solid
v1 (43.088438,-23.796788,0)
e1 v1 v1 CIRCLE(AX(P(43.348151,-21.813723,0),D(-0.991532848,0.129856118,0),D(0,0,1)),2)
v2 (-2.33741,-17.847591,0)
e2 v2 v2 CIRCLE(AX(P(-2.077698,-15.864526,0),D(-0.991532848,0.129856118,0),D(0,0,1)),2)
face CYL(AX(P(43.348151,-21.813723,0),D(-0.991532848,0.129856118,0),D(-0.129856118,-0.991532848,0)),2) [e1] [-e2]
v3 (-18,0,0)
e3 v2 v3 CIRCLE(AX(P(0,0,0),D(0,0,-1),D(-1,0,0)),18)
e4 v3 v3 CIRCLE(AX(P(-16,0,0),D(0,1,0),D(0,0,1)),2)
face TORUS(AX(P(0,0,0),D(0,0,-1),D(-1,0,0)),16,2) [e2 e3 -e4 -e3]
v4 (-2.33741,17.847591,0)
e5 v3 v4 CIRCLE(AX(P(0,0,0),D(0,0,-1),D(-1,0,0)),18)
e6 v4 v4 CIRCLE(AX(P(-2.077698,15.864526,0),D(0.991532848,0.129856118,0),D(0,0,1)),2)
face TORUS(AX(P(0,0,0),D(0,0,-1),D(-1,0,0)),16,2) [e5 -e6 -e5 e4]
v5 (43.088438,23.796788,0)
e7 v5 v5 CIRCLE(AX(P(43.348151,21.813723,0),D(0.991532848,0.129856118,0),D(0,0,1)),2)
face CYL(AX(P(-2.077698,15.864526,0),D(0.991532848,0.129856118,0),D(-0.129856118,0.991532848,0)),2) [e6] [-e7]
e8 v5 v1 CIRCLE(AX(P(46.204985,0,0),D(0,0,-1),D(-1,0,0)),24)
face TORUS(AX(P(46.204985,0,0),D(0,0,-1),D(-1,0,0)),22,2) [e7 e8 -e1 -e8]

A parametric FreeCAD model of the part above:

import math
import FreeCAD as App
import Part
import Sketcher
from FreeCAD import Vector
Q = App.Units.Quantity

doc = App.newDocument("Part")
body = doc.addObject("PartDesign::Body", "Body")

sketch1 = doc.addObject("Sketcher::SketchObject", "Sketch")
body.addObject(sketch1)
sketch1.AttachmentSupport = (doc.XZ_Plane, [""])
sketch1.MapMode = "FlatFace"
sketch1.addGeometry(Part.Circle(Vector(-16, 0, 0), Vector(0, 0, 1), 2), False)
sketch1.addConstraint([
    Sketcher.Constraint("PointOnObject", 0, 3, -1),
    Sketcher.Constraint("Diameter", 0, Q("4 mm")),
    Sketcher.Constraint("DistanceX", 0, 3, -1, 1, Q("16 mm")),
])

sketch2 = doc.addObject("Sketcher::SketchObject", "Sketch001")
body.addObject(sketch2)
sketch2.AttachmentSupport = (doc.XY_Plane, [""])
sketch2.MapMode = "FlatFace"
sketch2.addGeometry([
    Part.LineSegment(Vector(-2, 16, 0), Vector(43, 22, 0)),
    Part.ArcOfCircle(Part.Circle(Vector(46, 0, 0), Vector(0, 0, 1), 22), math.radians(-97), math.radians(97)),
    Part.LineSegment(Vector(43, -22, 0), Vector(-2, -16, 0)),
    Part.ArcOfCircle(Part.Circle(Vector(0, 0, 0), Vector(0, 0, 1), 16), math.radians(97), math.radians(263)),
], False)
sketch2.addConstraint([
    Sketcher.Constraint("Tangent", 0, 2, 1, 2),
    Sketcher.Constraint("Tangent", 1, 1, 2, 1),
    Sketcher.Constraint("Tangent", 2, 2, 3, 2),
    Sketcher.Constraint("Tangent", 3, 1, 0, 1),
    Sketcher.Constraint("Coincident", 3, 3, -1, 1),
    Sketcher.Constraint("PointOnObject", 1, 3, -1),
    Sketcher.Constraint("Radius", 1, Q("22 mm")),
    Sketcher.Constraint("Radius", 3, Q("16 mm")),
    Sketcher.Constraint("Distance", 0, Q("45.81376 mm")),
])
doc.recompute()

additivepipe = doc.addObject("PartDesign::AdditivePipe", "AdditivePipe")
body.addObject(additivepipe)
additivepipe.Profile = sketch1
additivepipe.Spine = (sketch2, ["Edge1", "Edge2", "Edge3", "Edge4"])

doc.recompute()
